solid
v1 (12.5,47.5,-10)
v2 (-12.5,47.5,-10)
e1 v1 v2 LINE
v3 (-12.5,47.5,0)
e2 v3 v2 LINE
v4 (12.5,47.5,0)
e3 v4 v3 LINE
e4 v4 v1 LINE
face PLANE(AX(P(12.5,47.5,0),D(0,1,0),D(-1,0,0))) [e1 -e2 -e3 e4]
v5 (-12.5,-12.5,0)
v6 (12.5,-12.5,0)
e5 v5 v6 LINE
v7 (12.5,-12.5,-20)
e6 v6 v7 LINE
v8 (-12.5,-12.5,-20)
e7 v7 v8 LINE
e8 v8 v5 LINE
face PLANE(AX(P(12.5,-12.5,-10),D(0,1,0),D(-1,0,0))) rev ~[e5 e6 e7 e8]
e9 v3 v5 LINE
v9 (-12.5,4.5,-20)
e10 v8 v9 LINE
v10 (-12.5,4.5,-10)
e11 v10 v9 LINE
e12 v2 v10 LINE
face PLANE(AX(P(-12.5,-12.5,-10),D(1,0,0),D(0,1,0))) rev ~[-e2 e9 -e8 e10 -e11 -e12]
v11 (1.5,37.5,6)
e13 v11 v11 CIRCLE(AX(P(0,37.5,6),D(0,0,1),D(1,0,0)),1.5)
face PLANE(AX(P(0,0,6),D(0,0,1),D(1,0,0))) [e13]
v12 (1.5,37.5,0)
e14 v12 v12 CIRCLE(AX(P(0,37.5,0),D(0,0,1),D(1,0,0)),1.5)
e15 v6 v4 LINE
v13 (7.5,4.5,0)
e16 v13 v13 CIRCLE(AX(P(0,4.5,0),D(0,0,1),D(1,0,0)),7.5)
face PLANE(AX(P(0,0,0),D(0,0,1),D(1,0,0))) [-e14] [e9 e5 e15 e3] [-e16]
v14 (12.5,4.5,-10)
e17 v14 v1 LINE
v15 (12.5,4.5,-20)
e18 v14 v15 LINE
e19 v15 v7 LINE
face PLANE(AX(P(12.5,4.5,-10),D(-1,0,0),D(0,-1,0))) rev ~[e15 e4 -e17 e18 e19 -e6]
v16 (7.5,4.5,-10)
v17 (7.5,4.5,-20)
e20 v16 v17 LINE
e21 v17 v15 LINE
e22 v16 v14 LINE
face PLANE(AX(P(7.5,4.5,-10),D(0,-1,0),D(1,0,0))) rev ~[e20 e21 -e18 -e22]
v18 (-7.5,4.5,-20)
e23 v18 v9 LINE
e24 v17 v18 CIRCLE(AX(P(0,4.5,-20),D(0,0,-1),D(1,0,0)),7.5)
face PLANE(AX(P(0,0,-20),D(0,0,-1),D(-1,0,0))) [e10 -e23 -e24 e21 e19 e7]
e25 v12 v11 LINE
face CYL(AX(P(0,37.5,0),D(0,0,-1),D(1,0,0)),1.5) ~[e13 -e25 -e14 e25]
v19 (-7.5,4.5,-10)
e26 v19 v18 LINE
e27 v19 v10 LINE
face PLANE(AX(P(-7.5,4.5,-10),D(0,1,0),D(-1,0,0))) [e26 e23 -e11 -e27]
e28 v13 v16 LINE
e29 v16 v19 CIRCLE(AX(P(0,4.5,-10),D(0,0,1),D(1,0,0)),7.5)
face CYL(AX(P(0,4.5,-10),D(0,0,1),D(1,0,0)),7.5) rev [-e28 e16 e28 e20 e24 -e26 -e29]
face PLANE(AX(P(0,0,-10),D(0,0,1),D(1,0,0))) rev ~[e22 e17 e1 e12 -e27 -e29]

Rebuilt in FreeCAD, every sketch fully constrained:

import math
import FreeCAD as App
import Part
import Sketcher


def add_polygon(sketch, points):
    """Adds a closed chain of lines whose ends are joined by coincident constraints."""
    first, n = sketch.GeometryCount, len(points)
    for a, b in zip(points, points[1:] + points[:1]):
        sketch.addGeometry(Part.LineSegment(App.Vector(*a, 0), App.Vector(*b, 0)), False)
    for i in range(n):
        sketch.addConstraint(Sketcher.Constraint("Coincident", first + i, 2, first + (i + 1) % n, 1))

doc = App.newDocument("Part")
body = doc.addObject("PartDesign::Body", "Body")

# Sketch on XY plane
sketch1 = body.newObject("Sketcher::SketchObject", "Sketch")
sketch1.AttachmentSupport = (doc.getObject("XY_Plane"), [""])
sketch1.MapMode = "FlatFace"
add_polygon(sketch1, [(-12, 48), (-12, -12), (12, -12), (12, 48)])  # lines 0-3
sketch1.addConstraint([
    Sketcher.Constraint("Vertical", 0),
    Sketcher.Constraint("Horizontal", 1),
    Sketcher.Constraint("Vertical", 2),
    Sketcher.Constraint("Horizontal", 3),
    Sketcher.Constraint("DistanceX", 1, 1, 1, 2, 25.0),
    Sketcher.Constraint("DistanceY", 0, 2, 0, 1, 60.0),
    Sketcher.Constraint("DistanceX", 0, 2, -1, 1, 12.5),
    Sketcher.Constraint("DistanceY", 0, 2, -1, 1, 12.5),
])
pad1 = body.newObject("PartDesign::Pad", "Pad")
pad1.Profile = sketch1
pad1.Length = 10
pad1.Reversed = True

# Sketch on XY plane
sketch2 = body.newObject("Sketcher::SketchObject", "Sketch001")
sketch2.AttachmentSupport = (doc.getObject("XY_Plane"), [""])
sketch2.MapMode = "FlatFace"
sketch2.addGeometry(Part.Circle(App.Vector(0, 37.5, 0), App.Vector(0, 0, 1), 1.5), False)
sketch2.addConstraint([
    Sketcher.Constraint("PointOnObject", 0, 3, -2),
    Sketcher.Constraint("Diameter", 0, 3.0),
    Sketcher.Constraint("DistanceY", -1, 1, 0, 3, 37.5),
])
pad2 = body.newObject("PartDesign::Pad", "Pad001")
pad2.Profile = sketch2
pad2.Length = 6

# Sketch on XY plane
sketch3 = body.newObject("Sketcher::SketchObject", "Sketch002")
sketch3.AttachmentSupport = (doc.getObject("XY_Plane"), [""])
sketch3.MapMode = "FlatFace"
sketch3.AttachmentOffset = App.Placement(App.Vector(0, 0, -10), App.Rotation())
sketch3.addGeometry([
    Part.ArcOfCircle(Part.Circle(App.Vector(0, 4, 0), App.Vector(0, 0, 1), 8), math.radians(180), math.radians(360)),  # 0
    Part.LineSegment(App.Vector(8, 4, 0), App.Vector(12, 4, 0)),  # 1
    Part.LineSegment(App.Vector(12, 4, 0), App.Vector(12, -12, 0)),  # 2
    Part.LineSegment(App.Vector(12, -12, 0), App.Vector(-12, -12, 0)),  # 3
    Part.LineSegment(App.Vector(-12, -12, 0), App.Vector(-12, 4, 0)),  # 4
    Part.LineSegment(App.Vector(-12, 4, 0), App.Vector(-8, 4, 0)),  # 5
], False)
sketch3.addConstraint([
    Sketcher.Constraint("Coincident", 0, 2, 1, 1),
    Sketcher.Constraint("Coincident", 1, 2, 2, 1),
    Sketcher.Constraint("Coincident", 2, 2, 3, 1),
    Sketcher.Constraint("Coincident", 3, 2, 4, 1),
    Sketcher.Constraint("Coincident", 4, 2, 5, 1),
    Sketcher.Constraint("Coincident", 5, 2, 0, 1),
    Sketcher.Constraint("Horizontal", 1),
    Sketcher.Constraint("Vertical", 2),
    Sketcher.Constraint("Horizontal", 3),
    Sketcher.Constraint("Vertical", 4),
    Sketcher.Constraint("Horizontal", 5),
    Sketcher.Constraint("Symmetric", 1, 2, 4, 2, -2),
    Sketcher.Constraint("PointOnObject", 0, 3, -2),
    Sketcher.Constraint("Radius", 0, 7.5),
    Sketcher.Constraint("DistanceX", 1, 1, 1, 2, 5.0),
    Sketcher.Constraint("DistanceY", 2, 2, 2, 1, 17.0),
    Sketcher.Constraint("DistanceY", 2, 2, 0, 3, 17.0),
    Sketcher.Constraint("DistanceY", -1, 1, 0, 3, 4.5),
])
pad3 = body.newObject("PartDesign::Pad", "Pad002")
pad3.Profile = sketch3
pad3.Length = 10
pad3.Reversed = True

# Sketch on XY plane
sketch4 = body.newObject("Sketcher::SketchObject", "Sketch003")
sketch4.AttachmentSupport = (doc.getObject("XY_Plane"), [""])
sketch4.MapMode = "FlatFace"
sketch4.addGeometry(Part.Circle(App.Vector(0, 4, 0), App.Vector(0, 0, 1), 8), False)
sketch4.addConstraint([
    Sketcher.Constraint("PointOnObject", 0, 3, -2),
    Sketcher.Constraint("Diameter", 0, 15.0),
    Sketcher.Constraint("DistanceY", -1, 1, 0, 3, 4.5),
])
pocket1 = body.newObject("PartDesign::Pocket", "Pocket")
pocket1.Profile = sketch4
pocket1.Length = 10

doc.recompute()
